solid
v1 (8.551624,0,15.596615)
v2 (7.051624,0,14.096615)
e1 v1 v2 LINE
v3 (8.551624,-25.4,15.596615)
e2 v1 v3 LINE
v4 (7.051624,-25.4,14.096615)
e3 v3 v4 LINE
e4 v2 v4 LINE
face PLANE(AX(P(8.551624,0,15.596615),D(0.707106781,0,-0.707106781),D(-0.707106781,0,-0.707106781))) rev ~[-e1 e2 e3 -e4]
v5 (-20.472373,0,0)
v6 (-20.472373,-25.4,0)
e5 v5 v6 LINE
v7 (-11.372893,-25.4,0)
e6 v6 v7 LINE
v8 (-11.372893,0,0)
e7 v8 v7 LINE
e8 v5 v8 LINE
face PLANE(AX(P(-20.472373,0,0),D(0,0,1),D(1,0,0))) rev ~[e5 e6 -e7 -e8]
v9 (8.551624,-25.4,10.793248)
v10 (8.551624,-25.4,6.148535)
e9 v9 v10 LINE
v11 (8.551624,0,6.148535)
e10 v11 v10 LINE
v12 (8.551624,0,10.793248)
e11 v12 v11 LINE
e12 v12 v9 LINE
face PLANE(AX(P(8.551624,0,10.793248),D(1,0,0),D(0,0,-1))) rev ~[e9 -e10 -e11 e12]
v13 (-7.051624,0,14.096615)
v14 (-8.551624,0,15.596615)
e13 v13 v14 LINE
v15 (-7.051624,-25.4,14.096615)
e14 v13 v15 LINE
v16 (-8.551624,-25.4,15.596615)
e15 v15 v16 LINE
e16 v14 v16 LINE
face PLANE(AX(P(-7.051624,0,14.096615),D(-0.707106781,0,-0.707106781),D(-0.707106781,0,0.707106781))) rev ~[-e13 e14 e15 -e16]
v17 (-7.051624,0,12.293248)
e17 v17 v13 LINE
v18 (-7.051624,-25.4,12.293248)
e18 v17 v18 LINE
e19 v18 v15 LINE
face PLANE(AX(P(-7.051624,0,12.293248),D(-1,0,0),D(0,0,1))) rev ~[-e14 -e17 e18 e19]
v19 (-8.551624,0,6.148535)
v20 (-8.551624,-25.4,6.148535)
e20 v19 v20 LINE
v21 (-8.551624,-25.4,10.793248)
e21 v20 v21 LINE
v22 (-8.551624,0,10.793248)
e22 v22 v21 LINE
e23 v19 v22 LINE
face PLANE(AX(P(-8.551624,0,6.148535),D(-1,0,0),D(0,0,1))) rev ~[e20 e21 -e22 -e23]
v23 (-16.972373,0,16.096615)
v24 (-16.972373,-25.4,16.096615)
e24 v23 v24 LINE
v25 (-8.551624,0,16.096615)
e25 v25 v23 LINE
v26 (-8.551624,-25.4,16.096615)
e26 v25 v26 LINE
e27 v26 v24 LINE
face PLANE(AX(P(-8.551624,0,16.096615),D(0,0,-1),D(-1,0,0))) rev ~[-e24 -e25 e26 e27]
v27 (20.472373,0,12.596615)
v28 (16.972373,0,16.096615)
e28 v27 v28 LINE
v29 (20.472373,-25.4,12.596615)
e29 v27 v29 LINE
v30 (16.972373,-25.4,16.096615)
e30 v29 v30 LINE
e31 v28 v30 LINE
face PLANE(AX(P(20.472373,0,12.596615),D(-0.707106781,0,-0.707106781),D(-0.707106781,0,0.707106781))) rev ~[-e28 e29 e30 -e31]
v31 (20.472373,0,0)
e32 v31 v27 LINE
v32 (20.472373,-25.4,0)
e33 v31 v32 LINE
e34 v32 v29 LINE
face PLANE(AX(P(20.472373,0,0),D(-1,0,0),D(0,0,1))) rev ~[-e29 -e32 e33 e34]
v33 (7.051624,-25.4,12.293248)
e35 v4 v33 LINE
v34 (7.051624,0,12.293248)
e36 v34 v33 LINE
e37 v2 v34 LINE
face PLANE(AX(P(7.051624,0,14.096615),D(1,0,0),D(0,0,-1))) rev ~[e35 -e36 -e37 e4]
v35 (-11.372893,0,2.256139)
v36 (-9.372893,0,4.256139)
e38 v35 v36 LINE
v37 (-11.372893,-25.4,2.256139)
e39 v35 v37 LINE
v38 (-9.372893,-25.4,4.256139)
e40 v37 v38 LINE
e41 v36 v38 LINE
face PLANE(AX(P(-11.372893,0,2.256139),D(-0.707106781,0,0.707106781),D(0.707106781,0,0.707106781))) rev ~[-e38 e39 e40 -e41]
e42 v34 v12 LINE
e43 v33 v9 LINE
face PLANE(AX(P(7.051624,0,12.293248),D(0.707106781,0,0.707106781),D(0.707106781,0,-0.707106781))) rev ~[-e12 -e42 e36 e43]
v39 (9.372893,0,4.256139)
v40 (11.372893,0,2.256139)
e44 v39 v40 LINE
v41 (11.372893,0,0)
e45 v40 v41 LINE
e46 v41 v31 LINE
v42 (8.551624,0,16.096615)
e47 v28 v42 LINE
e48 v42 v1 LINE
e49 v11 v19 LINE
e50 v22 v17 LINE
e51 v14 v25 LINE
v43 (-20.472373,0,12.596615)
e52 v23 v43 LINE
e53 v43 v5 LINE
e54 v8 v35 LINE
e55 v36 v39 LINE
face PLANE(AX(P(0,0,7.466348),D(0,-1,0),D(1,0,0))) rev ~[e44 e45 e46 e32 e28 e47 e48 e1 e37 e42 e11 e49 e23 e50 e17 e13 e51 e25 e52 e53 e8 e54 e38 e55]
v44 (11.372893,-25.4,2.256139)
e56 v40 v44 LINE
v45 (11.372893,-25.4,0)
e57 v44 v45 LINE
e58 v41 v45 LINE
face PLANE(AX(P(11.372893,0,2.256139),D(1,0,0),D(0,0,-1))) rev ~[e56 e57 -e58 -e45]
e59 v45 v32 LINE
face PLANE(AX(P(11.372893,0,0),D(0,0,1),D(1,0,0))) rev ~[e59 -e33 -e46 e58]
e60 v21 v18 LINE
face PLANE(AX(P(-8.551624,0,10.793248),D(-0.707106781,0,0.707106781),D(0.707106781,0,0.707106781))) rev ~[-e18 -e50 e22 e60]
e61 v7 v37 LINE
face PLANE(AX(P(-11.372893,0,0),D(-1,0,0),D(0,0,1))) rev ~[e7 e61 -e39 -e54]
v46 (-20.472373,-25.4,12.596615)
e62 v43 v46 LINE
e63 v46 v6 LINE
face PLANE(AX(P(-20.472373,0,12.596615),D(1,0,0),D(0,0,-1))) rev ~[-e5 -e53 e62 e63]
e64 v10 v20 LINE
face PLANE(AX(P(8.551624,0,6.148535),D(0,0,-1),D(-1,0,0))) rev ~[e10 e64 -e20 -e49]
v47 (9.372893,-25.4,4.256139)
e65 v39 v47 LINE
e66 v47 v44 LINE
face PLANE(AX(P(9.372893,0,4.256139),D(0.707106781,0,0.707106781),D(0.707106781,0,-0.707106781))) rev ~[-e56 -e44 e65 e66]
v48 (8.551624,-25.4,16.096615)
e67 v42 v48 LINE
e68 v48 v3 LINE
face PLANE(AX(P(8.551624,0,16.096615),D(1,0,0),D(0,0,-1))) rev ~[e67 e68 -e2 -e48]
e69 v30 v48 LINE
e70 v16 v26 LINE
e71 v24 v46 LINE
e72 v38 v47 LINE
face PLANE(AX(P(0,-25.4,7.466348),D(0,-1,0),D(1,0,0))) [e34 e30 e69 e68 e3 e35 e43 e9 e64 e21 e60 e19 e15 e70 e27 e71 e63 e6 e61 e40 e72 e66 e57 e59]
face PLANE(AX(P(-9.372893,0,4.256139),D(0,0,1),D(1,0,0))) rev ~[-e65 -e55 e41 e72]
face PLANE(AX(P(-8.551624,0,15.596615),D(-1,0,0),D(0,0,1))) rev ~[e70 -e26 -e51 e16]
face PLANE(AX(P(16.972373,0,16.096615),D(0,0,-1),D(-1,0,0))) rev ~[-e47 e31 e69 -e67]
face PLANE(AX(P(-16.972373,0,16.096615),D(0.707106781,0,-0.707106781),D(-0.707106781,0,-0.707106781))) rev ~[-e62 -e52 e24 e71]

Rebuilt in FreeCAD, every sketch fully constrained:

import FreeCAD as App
import Part
import Sketcher

V = App.Vector
Q = App.Units.Quantity

doc = App.newDocument("Part")
params = doc.addObject("Spreadsheet::Sheet", "Params")
for row, (alias, value) in enumerate([
    ("sketch1_height", "0.5 mm"),
    ("pad1_length", "25.4 mm"),
], start=1):
    params.set(f"A{row}", alias)
    params.set(f"B{row}", "=" + value)
    params.setAlias(f"B{row}", alias)

body = doc.addObject("PartDesign::Body", "Body")

# Sketch on XZ plane
sketch1 = body.newObject("Sketcher::SketchObject", "Sketch")
sketch1.AttachmentSupport = (doc.getObject("XZ_Plane"), [""])
sketch1.MapMode = "FlatFace"
sketch1.addGeometry([
    Part.LineSegment(V(11.4, 2.3, 0), V(11.4, 0, 0)),  # 0
    Part.LineSegment(V(11.4, 0, 0), V(20.5, 0, 0)),  # 1
    Part.LineSegment(V(20.5, 0, 0), V(20.5, 12.6, 0)),  # 2
    Part.LineSegment(V(20.5, 12.6, 0), V(17, 16.1, 0)),  # 3
    Part.LineSegment(V(17, 16.1, 0), V(8.6, 16.1, 0)),  # 4
    Part.LineSegment(V(8.6, 16.1, 0), V(8.6, 15.6, 0)),  # 5
    Part.LineSegment(V(8.6, 15.6, 0), V(7.1, 14.1, 0)),  # 6
    Part.LineSegment(V(7.1, 14.1, 0), V(7.1, 12.3, 0)),  # 7
    Part.LineSegment(V(7.1, 12.3, 0), V(8.6, 10.8, 0)),  # 8
    Part.LineSegment(V(8.6, 10.8, 0), V(8.6, 6.1, 0)),  # 9
    Part.LineSegment(V(8.6, 6.1, 0), V(-8.6, 6.1, 0)),  # 10
    Part.LineSegment(V(-8.6, 6.1, 0), V(-8.6, 10.8, 0)),  # 11
    Part.LineSegment(V(-8.6, 10.8, 0), V(-7.1, 12.3, 0)),  # 12
    Part.LineSegment(V(-7.1, 12.3, 0), V(-7.1, 14.1, 0)),  # 13
    Part.LineSegment(V(-7.1, 14.1, 0), V(-8.6, 15.6, 0)),  # 14
    Part.LineSegment(V(-8.6, 15.6, 0), V(-8.6, 16.1, 0)),  # 15
    Part.LineSegment(V(-8.6, 16.1, 0), V(-17, 16.1, 0)),  # 16
    Part.LineSegment(V(-17, 16.1, 0), V(-20.5, 12.6, 0)),  # 17
    Part.LineSegment(V(-20.5, 12.6, 0), V(-20.5, 0, 0)),  # 18
    Part.LineSegment(V(-20.5, 0, 0), V(-11.4, 0, 0)),  # 19
    Part.LineSegment(V(-11.4, 0, 0), V(-11.4, 2.3, 0)),  # 20
    Part.LineSegment(V(-11.4, 2.3, 0), V(-9.4, 4.3, 0)),  # 21
    Part.LineSegment(V(-9.4, 4.3, 0), V(9.4, 4.3, 0)),  # 22
    Part.LineSegment(V(9.4, 4.3, 0), V(11.4, 2.3, 0)),  # 23
], False)
sketch1.addConstraint([
    Sketcher.Constraint("Coincident", 0, 2, 1, 1),
    Sketcher.Constraint("Coincident", 1, 2, 2, 1),
    Sketcher.Constraint("Coincident", 2, 2, 3, 1),
    Sketcher.Constraint("Coincident", 3, 2, 4, 1),
    Sketcher.Constraint("Coincident", 4, 2, 5, 1),
    Sketcher.Constraint("Coincident", 5, 2, 6, 1),
    Sketcher.Constraint("Coincident", 6, 2, 7, 1),
    Sketcher.Constraint("Coincident", 7, 2, 8, 1),
    Sketcher.Constraint("Coincident", 8, 2, 9, 1),
    Sketcher.Constraint("Coincident", 9, 2, 10, 1),
    Sketcher.Constraint("Coincident", 10, 2, 11, 1),
    Sketcher.Constraint("Coincident", 11, 2, 12, 1),
    Sketcher.Constraint("Coincident", 12, 2, 13, 1),
    Sketcher.Constraint("Coincident", 13, 2, 14, 1),
    Sketcher.Constraint("Coincident", 14, 2, 15, 1),
    Sketcher.Constraint("Coincident", 15, 2, 16, 1),
    Sketcher.Constraint("Coincident", 16, 2, 17, 1),
    Sketcher.Constraint("Coincident", 17, 2, 18, 1),
    Sketcher.Constraint("Coincident", 18, 2, 19, 1),
    Sketcher.Constraint("Coincident", 19, 2, 20, 1),
    Sketcher.Constraint("Coincident", 20, 2, 21, 1),
    Sketcher.Constraint("Coincident", 21, 2, 22, 1),
    Sketcher.Constraint("Coincident", 22, 2, 23, 1),
    Sketcher.Constraint("Coincident", 23, 2, 0, 1),
    Sketcher.Constraint("Vertical", 0),
    Sketcher.Constraint("Horizontal", 1),
    Sketcher.Constraint("Vertical", 2),
    Sketcher.Constraint("Horizontal", 4),
    Sketcher.Constraint("Vertical", 5),
    Sketcher.Constraint("Vertical", 7),
    Sketcher.Constraint("Vertical", 9),
    Sketcher.Constraint("Horizontal", 10),
    Sketcher.Constraint("Vertical", 11),
    Sketcher.Constraint("Vertical", 13),
    Sketcher.Constraint("Vertical", 15),
    Sketcher.Constraint("Horizontal", 16),
    Sketcher.Constraint("Vertical", 18),
    Sketcher.Constraint("Horizontal", 19),
    Sketcher.Constraint("Vertical", 20),
    Sketcher.Constraint("Horizontal", 22),
    Sketcher.Constraint("Symmetric", 1, 2, 18, 2, -1, 1),
    Sketcher.Constraint("Symmetric", 8, 2, 11, 2, -2),
    Sketcher.Constraint("Symmetric", 7, 2, 12, 2, -2),
    Sketcher.Constraint("Symmetric", 5, 2, 14, 2, -2),
    Sketcher.Constraint("Symmetric", 3, 2, 16, 2, -2),
    Sketcher.Constraint("Symmetric", 0, 2, 19, 2, -2),
    Sketcher.Constraint("Perpendicular", 3, 6),
    Sketcher.Constraint("Perpendicular", 6, 8),
    Sketcher.Constraint("Perpendicular", 8, 12),
    Sketcher.Constraint("Perpendicular", 12, 14),
    Sketcher.Constraint("Perpendicular", 14, 17),
    Sketcher.Constraint("Parallel", 17, 21),
    Sketcher.Constraint("Perpendicular", 21, 23),
    Sketcher.Constraint("Horizontal", 20, 2, 23, 2),
    Sketcher.Constraint("Vertical", 5, 2, 8, 2),
    Sketcher.Constraint("DistanceY", 5, 2, 5, 1, Q("0.5 mm")),
    Sketcher.Constraint("DistanceY", 2, 2, 5, 2, Q("3 mm")),
    Sketcher.Constraint("DistanceY", 6, 2, 4, 2, Q("2 mm")),
    Sketcher.Constraint("DistanceX", 20, 2, 21, 2, Q("2 mm")),
    Sketcher.Constraint("DistanceX", 1, 1, 1, 2, Q("9.09948 mm")),
    Sketcher.Constraint("DistanceX", 4, 2, 4, 1, Q("8.420749 mm")),
    Sketcher.Constraint("DistanceX", 10, 2, 10, 1, Q("17.103248 mm")),
    Sketcher.Constraint("DistanceY", 0, 2, 0, 1, Q("2.256139 mm")),
    Sketcher.Constraint("DistanceY", 2, 1, 2, 2, Q("12.596615 mm")),
    Sketcher.Constraint("DistanceY", 7, 2, 7, 1, Q("1.803367 mm")),
    Sketcher.Constraint("DistanceY", 9, 2, 9, 1, Q("4.644713 mm")),
])
sketch1.setExpression("Constraints[55]", "Params.sketch1_height")
pad1 = body.newObject("PartDesign::Pad", "Pad")
pad1.Profile = sketch1
pad1.setExpression("Length", "Params.pad1_length")

doc.recompute()
